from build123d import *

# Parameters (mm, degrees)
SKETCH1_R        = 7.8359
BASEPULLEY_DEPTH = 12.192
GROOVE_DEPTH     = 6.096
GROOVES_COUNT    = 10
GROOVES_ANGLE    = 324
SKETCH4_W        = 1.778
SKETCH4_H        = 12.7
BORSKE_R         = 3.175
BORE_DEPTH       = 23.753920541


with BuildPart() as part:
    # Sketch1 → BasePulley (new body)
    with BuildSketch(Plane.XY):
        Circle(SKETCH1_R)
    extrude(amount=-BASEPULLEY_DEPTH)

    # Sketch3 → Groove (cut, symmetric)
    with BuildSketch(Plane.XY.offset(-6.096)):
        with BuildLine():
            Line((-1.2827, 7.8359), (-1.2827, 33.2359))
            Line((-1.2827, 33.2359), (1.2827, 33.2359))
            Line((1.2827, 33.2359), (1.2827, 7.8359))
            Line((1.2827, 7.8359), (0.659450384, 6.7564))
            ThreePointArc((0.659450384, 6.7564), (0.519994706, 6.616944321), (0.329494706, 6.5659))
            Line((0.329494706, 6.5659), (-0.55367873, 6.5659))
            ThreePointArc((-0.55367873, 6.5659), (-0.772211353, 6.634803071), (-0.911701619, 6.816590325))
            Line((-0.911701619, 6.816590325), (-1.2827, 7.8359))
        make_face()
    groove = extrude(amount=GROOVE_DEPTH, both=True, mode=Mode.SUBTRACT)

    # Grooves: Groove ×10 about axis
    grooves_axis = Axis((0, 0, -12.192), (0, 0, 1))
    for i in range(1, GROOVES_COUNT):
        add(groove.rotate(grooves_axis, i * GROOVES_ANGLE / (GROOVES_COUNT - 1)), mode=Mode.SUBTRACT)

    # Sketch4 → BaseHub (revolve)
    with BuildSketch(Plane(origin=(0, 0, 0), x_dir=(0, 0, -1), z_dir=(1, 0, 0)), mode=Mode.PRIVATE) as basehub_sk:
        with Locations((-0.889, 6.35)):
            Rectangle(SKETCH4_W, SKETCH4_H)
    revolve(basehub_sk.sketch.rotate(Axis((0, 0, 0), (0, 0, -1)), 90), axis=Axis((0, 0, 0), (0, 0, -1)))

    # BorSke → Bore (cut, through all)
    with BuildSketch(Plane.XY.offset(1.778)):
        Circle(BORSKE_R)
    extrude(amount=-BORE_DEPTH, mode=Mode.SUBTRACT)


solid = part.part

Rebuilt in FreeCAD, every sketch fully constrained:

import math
import FreeCAD as App
import Part
import Sketcher

V = App.Vector
Q = App.Units.Quantity


def add_polygon(sketch, points):
    """Adds a closed chain of lines whose ends are joined by coincident constraints."""
    first, n = sketch.GeometryCount, len(points)
    for a, b in zip(points, points[1:] + points[:1]):
        sketch.addGeometry(Part.LineSegment(App.Vector(*a, 0), App.Vector(*b, 0)), False)
    for i in range(n):
        sketch.addConstraint(Sketcher.Constraint("Coincident", first + i, 2, first + (i + 1) % n, 1))

doc = App.newDocument("Part")
body = doc.addObject("PartDesign::Body", "Body")

# Sketch on XY plane
sketch1 = body.newObject("Sketcher::SketchObject", "Sketch")
sketch1.AttachmentSupport = (doc.getObject("XY_Plane"), [""])
sketch1.MapMode = "FlatFace"
sketch1.addGeometry(Part.Circle(V(0, 0, 0), V(0, 0, 1), 7.8359), False)
sketch1.addConstraint([
    Sketcher.Constraint("Coincident", 0, 3, -1, 1),
    Sketcher.Constraint("Diameter", 0, Q("0.617 in")),
])
pad1 = body.newObject("PartDesign::Pad", "Pad")
pad1.Profile = sketch1
pad1.Length = Q("0.48 in")
pad1.Reversed = True

# Sketch on XY plane
sketch2 = body.newObject("Sketcher::SketchObject", "Sketch001")
sketch2.AttachmentSupport = (doc.getObject("XY_Plane"), [""])
sketch2.MapMode = "FlatFace"
sketch2.AttachmentOffset = App.Placement(V(0, 0, -0.24 * 25.4), App.Rotation())
sketch2.addGeometry([
    Part.LineSegment(V(-1.2827, 33.2359, 0), V(-1.2827, 7.8359, 0)),  # 0
    Part.LineSegment(V(-1.2827, 7.8359, 0), V(-0.911702, 6.81659, 0)),  # 1
    Part.ArcOfCircle(Part.Circle(V(-0.553679, 6.9469, 0), V(0, 0, 1), 0.381), math.radians(-160), math.radians(-90)),  # 2
    Part.LineSegment(V(-0.553679, 6.5659, 0), V(0.329495, 6.5659, 0)),  # 3
    Part.ArcOfCircle(Part.Circle(V(0.329495, 6.9469, 0), V(0, 0, 1), 0.381), math.radians(-90), math.radians(-30)),  # 4
    Part.LineSegment(V(0.65945, 6.7564, 0), V(1.2827, 7.8359, 0)),  # 5
    Part.LineSegment(V(1.2827, 7.8359, 0), V(1.2827, 33.2359, 0)),  # 6
    Part.LineSegment(V(1.2827, 33.2359, 0), V(-1.2827, 33.2359, 0)),  # 7
], False)
sketch2.addConstraint([
    Sketcher.Constraint("Coincident", 0, 2, 1, 1),
    Sketcher.Constraint("Tangent", 1, 2, 2, 1),
    Sketcher.Constraint("Tangent", 2, 2, 3, 1),
    Sketcher.Constraint("Tangent", 3, 2, 4, 1),
    Sketcher.Constraint("Tangent", 4, 2, 5, 1),
    Sketcher.Constraint("Coincident", 5, 2, 6, 1),
    Sketcher.Constraint("Coincident", 6, 2, 7, 1),
    Sketcher.Constraint("Coincident", 7, 2, 0, 1),
    Sketcher.Constraint("Vertical", 0),
    Sketcher.Constraint("Horizontal", 3),
    Sketcher.Constraint("Vertical", 6),
    Sketcher.Constraint("Horizontal", 7),
    Sketcher.Constraint("Equal", 2, 4),
    Sketcher.Constraint("Symmetric", 0, 2, 5, 2, -2),
    Sketcher.Constraint("DistanceY", 0, 2, 0, 1, Q("1 in")),
    Sketcher.Constraint("Angle", 1, Q("-70 deg")),
    Sketcher.Constraint("Angle", 5, Q("60 deg")),
    Sketcher.Constraint("Radius", 2, Q("0.015 in")),
    Sketcher.Constraint("DistanceX", 7, 2, 7, 1, Q("0.101 in")),
    Sketcher.Constraint("DistanceY", 2, 2, 0, 2, Q("0.05 in")),
    Sketcher.Constraint("DistanceY", -1, 1, 4, 2, Q("0.266 in")),
])
pocket1 = body.newObject("PartDesign::Pocket", "Pocket")
pocket1.Profile = sketch2
pocket1.Length = Q("0.48 in")
pocket1.Midplane = True
doc.recompute()

polarpattern = body.newObject("PartDesign::PolarPattern", "PolarPattern")
polarpattern.Originals = [pocket1]
polarpattern.Axis = (doc.getObject("Z_Axis"), [""])
polarpattern.Angle = 360
polarpattern.Occurrences = 10
body.Tip = polarpattern

# Sketch on YZ plane
sketch3 = body.newObject("Sketcher::SketchObject", "Sketch002")
sketch3.AttachmentSupport = (doc.getObject("YZ_Plane"), [""])
sketch3.MapMode = "FlatFace"
add_polygon(sketch3, [(12.7, 1.778), (0, 1.778), (0, 0), (12.7, 0)])  # lines 0-3
sketch3.addConstraint([
    Sketcher.Constraint("Horizontal", 0),
    Sketcher.Constraint("Vertical", 1),
    Sketcher.Constraint("Horizontal", 2),
    Sketcher.Constraint("Vertical", 3),
    Sketcher.Constraint("Coincident", 1, 2, -1, 1),
    Sketcher.Constraint("DistanceX", 0, 2, 0, 1, Q("0.5 in")),
    Sketcher.Constraint("DistanceY", 1, 2, 1, 1, Q("0.07 in")),
])
revolution = body.newObject("PartDesign::Revolution", "Revolution")
revolution.Profile = sketch3
revolution.ReferenceAxis = (sketch3, ["V_Axis"])
revolution.Angle = 360

# Sketch on XY plane
sketch4 = body.newObject("Sketcher::SketchObject", "Sketch003")
sketch4.AttachmentSupport = (doc.getObject("XY_Plane"), [""])
sketch4.MapMode = "FlatFace"
sketch4.AttachmentOffset = App.Placement(V(0, 0, 0.07 * 25.4), App.Rotation())
sketch4.addGeometry(Part.Circle(V(0, 0, 0), V(0, 0, 1), 3.175), False)
sketch4.addConstraint([
    Sketcher.Constraint("Coincident", 0, 3, -1, 1),
    Sketcher.Constraint("Diameter", 0, Q("0.25 in")),
])
pocket2 = body.newObject("PartDesign::Pocket", "Pocket001")
pocket2.Profile = sketch4
pocket2.Type = "ThroughAll"

doc.recompute()
